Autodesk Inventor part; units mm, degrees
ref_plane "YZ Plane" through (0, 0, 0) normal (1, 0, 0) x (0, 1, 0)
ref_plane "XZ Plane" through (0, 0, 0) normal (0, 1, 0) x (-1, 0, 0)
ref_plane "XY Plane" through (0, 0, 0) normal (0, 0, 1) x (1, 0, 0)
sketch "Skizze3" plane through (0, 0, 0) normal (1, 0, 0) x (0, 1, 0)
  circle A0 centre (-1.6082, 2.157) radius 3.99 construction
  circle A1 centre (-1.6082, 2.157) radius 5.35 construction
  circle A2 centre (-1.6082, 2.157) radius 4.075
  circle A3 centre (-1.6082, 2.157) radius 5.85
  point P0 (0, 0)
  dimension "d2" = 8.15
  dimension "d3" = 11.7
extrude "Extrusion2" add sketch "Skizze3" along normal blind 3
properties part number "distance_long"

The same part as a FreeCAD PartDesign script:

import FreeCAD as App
import Part
import Sketcher

V = App.Vector

doc = App.newDocument("Part")
body = doc.addObject("PartDesign::Body", "Body")

# Sketch on YZ plane
sketch1 = body.newObject("Sketcher::SketchObject", "Sketch")
sketch1.AttachmentSupport = (doc.getObject("YZ_Plane"), [""])
sketch1.MapMode = "FlatFace"
sketch1.addGeometry([
    Part.Circle(V(-1.6, 2.2, 0), V(0, 0, 1), 5.8),
    Part.Circle(V(-1.6, 2.2, 0), V(0, 0, 1), 4.1),
], False)
sketch1.addConstraint([
    Sketcher.Constraint("Coincident", 1, 3, 0, 3),
    Sketcher.Constraint("Diameter", 0, 11.7),
    Sketcher.Constraint("Diameter", 1, 8.15),
    Sketcher.Constraint("DistanceY", -1, 1, 0, 3, 2.157),
    Sketcher.Constraint("DistanceX", 0, 3, -1, 1, 1.6082),
])
pad1 = body.newObject("PartDesign::Pad", "Pad")
pad1.Profile = sketch1
pad1.Length = 3

doc.recompute()
